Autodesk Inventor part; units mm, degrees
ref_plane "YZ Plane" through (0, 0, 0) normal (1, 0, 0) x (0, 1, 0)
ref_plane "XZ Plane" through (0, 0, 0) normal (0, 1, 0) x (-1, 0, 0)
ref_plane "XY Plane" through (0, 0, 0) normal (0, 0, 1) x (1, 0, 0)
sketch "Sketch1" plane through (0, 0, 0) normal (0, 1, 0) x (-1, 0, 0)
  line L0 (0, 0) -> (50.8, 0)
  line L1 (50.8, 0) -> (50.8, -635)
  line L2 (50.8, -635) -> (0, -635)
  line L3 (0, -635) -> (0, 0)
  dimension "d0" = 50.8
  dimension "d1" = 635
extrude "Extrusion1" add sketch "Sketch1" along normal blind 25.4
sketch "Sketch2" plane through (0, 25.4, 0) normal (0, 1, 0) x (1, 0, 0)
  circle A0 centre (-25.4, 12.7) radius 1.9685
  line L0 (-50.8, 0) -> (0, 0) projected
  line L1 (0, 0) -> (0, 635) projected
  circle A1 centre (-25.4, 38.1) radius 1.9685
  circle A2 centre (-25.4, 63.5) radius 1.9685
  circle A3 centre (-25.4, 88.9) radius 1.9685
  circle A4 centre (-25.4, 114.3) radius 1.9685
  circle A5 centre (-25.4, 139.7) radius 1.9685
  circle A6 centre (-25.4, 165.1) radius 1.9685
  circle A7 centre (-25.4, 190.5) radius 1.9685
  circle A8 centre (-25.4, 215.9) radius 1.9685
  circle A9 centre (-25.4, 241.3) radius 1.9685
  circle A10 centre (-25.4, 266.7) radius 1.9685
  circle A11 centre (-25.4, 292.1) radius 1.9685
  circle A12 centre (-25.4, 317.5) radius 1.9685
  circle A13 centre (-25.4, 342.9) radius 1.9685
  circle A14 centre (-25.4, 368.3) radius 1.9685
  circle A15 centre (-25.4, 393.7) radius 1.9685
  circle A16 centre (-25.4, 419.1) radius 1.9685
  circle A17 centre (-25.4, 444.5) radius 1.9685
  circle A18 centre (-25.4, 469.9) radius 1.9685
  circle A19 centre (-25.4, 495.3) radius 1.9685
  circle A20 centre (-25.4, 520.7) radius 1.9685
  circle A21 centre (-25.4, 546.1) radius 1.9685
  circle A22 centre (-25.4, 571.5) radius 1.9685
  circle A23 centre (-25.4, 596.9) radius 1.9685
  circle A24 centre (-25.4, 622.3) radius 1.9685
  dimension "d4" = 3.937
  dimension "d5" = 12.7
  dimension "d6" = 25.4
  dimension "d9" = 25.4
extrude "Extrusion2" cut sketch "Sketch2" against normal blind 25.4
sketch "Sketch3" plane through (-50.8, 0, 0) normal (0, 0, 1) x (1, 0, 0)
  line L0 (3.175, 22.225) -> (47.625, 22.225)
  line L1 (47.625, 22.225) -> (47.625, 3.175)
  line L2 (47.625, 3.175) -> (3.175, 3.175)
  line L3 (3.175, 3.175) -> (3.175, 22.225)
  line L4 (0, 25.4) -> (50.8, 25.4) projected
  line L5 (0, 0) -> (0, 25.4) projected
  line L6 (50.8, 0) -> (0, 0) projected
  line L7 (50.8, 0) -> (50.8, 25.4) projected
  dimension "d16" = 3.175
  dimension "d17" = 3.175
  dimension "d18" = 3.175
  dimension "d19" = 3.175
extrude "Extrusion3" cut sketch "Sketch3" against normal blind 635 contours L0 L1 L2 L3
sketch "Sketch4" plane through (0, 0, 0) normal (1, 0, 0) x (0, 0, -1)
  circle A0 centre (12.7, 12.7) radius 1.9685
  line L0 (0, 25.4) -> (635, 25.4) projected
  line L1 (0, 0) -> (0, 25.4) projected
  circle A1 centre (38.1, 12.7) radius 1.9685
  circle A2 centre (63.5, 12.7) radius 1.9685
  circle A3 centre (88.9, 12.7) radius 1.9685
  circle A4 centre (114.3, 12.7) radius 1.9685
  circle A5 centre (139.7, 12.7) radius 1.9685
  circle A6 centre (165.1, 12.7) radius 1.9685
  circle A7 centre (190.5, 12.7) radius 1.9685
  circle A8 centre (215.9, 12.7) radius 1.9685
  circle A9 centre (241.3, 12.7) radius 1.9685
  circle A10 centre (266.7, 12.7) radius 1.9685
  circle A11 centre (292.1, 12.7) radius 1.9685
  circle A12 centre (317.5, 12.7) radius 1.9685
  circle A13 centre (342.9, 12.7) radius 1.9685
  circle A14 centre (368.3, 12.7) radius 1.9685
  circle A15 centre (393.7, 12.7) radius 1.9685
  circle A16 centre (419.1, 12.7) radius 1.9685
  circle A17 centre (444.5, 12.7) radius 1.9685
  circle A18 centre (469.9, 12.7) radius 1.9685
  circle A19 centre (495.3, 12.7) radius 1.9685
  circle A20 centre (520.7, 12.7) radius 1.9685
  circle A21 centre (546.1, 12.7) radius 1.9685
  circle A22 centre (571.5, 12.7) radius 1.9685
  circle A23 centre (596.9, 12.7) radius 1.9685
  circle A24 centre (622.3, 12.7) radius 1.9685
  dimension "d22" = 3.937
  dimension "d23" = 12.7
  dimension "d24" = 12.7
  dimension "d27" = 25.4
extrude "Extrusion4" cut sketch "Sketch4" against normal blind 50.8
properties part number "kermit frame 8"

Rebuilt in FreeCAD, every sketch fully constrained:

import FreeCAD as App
import Part
import Sketcher
from FreeCAD import Vector
Q = App.Units.Quantity

doc = App.newDocument("Part")
params = doc.addObject("Spreadsheet::Sheet", "Params")
for row, (alias, value) in enumerate([
    ("sketch1_width", "2 in"),
    ("sketch1_height", "25 in"),
    ("pad1_length", "1 in"),
    ("sketch2_diameter", "0.155 in"),
    ("pocket1_length", "1 in"),
    ("sketch3_width", "1.75 in"),
    ("sketch3_height", "0.75 in"),
    ("pocket2_length", "25 in"),
    ("sketch4_diameter", "0.155 in"),
    ("pocket3_length", "2 in"),
], start=1):
    params.set(f"A{row}", alias)
    params.set(f"B{row}", "=" + value)
    params.setAlias(f"B{row}", alias)

body = doc.addObject("PartDesign::Body", "Body")

sketch1 = body.newObject("Sketcher::SketchObject", "Sketch")
sketch1.AttachmentSupport = (doc.getObject("XZ_Plane"), [""])
sketch1.MapMode = "FlatFace"
sketch1.addGeometry(Part.LineSegment(Vector(-51, 0, 0), Vector(0, 0, 0)), False)
sketch1.addGeometry(Part.LineSegment(Vector(0, 0, 0), Vector(0, -635, 0)), False)
sketch1.addGeometry(Part.LineSegment(Vector(0, -635, 0), Vector(-51, -635, 0)), False)
sketch1.addGeometry(Part.LineSegment(Vector(-51, -635, 0), Vector(-51, 0, 0)), False)
sketch1.addConstraint(Sketcher.Constraint("Coincident", 0, 2, 1, 1))
sketch1.addConstraint(Sketcher.Constraint("Coincident", 1, 2, 2, 1))
sketch1.addConstraint(Sketcher.Constraint("Coincident", 2, 2, 3, 1))
sketch1.addConstraint(Sketcher.Constraint("Coincident", 3, 2, 0, 1))
sketch1.addConstraint(Sketcher.Constraint("Horizontal", 0))
sketch1.addConstraint(Sketcher.Constraint("Vertical", 1))
sketch1.addConstraint(Sketcher.Constraint("Horizontal", 2))
sketch1.addConstraint(Sketcher.Constraint("Vertical", 3))
sketch1.addConstraint(Sketcher.Constraint("Coincident", 0, 2, -1, 1))
sketch1.addConstraint(Sketcher.Constraint("DistanceX", 0, 1, 0, 2, Q("2 in")))
sketch1.addConstraint(Sketcher.Constraint("DistanceY", 1, 2, 1, 1, Q("25 in")))
sketch1.setExpression("Constraints[9]", "Params.sketch1_width")
sketch1.setExpression("Constraints[10]", "Params.sketch1_height")
pad1 = body.newObject("PartDesign::Pad", "Pad")
pad1.Profile = sketch1
pad1.setExpression("Length", "Params.pad1_length")
pad1.Reversed = True

sketch2 = body.newObject("Sketcher::SketchObject", "Sketch001")
sketch2.AttachmentSupport = (doc.getObject("XZ_Plane"), [""])
sketch2.MapMode = "FlatFace"
sketch2.AttachmentOffset = App.Placement(Vector(0, 0, -1 * 25.4), App.Rotation())
sketch2.addGeometry(Part.Circle(Vector(-25.4, -12.7, 0), Vector(0, 0, 1), 2), False)
sketch2.addGeometry(Part.Circle(Vector(-25.4, -38.1, 0), Vector(0, 0, 1), 2), False)
sketch2.addGeometry(Part.Circle(Vector(-25.4, -63.5, 0), Vector(0, 0, 1), 2), False)
sketch2.addGeometry(Part.Circle(Vector(-25.4, -88.9, 0), Vector(0, 0, 1), 2), False)
sketch2.addGeometry(Part.Circle(Vector(-25.4, -114.3, 0), Vector(0, 0, 1), 2), False)
sketch2.addGeometry(Part.Circle(Vector(-25.4, -139.7, 0), Vector(0, 0, 1), 2), False)
sketch2.addGeometry(Part.Circle(Vector(-25.4, -165.1, 0), Vector(0, 0, 1), 2), False)
sketch2.addGeometry(Part.Circle(Vector(-25.4, -190.5, 0), Vector(0, 0, 1), 2), False)
sketch2.addGeometry(Part.Circle(Vector(-25.4, -215.9, 0), Vector(0, 0, 1), 2), False)
sketch2.addGeometry(Part.Circle(Vector(-25.4, -241.3, 0), Vector(0, 0, 1), 2), False)
sketch2.addGeometry(Part.Circle(Vector(-25.4, -266.7, 0), Vector(0, 0, 1), 2), False)
sketch2.addGeometry(Part.Circle(Vector(-25.4, -292.1, 0), Vector(0, 0, 1), 2), False)
sketch2.addGeometry(Part.Circle(Vector(-25.4, -317.5, 0), Vector(0, 0, 1), 2), False)
sketch2.addGeometry(Part.Circle(Vector(-25.4, -342.9, 0), Vector(0, 0, 1), 2), False)
sketch2.addGeometry(Part.Circle(Vector(-25.4, -368.3, 0), Vector(0, 0, 1), 2), False)
sketch2.addGeometry(Part.Circle(Vector(-25.4, -393.7, 0), Vector(0, 0, 1), 2), False)
sketch2.addGeometry(Part.Circle(Vector(-25.4, -419.1, 0), Vector(0, 0, 1), 2), False)
sketch2.addGeometry(Part.Circle(Vector(-25.4, -444.5, 0), Vector(0, 0, 1), 2), False)
sketch2.addGeometry(Part.Circle(Vector(-25.4, -469.9, 0), Vector(0, 0, 1), 2), False)
sketch2.addGeometry(Part.Circle(Vector(-25.4, -495.3, 0), Vector(0, 0, 1), 2), False)
sketch2.addGeometry(Part.Circle(Vector(-25.4, -520.7, 0), Vector(0, 0, 1), 2), False)
sketch2.addGeometry(Part.Circle(Vector(-25.4, -546.1, 0), Vector(0, 0, 1), 2), False)
sketch2.addGeometry(Part.Circle(Vector(-25.4, -571.5, 0), Vector(0, 0, 1), 2), False)
sketch2.addGeometry(Part.Circle(Vector(-25.4, -596.9, 0), Vector(0, 0, 1), 2), False)
sketch2.addGeometry(Part.Circle(Vector(-25.4, -622.3, 0), Vector(0, 0, 1), 2), False)
sketch2.addConstraint(Sketcher.Constraint("Equal", 0, 1))
sketch2.addConstraint(Sketcher.Constraint("Equal", 1, 2))
sketch2.addConstraint(Sketcher.Constraint("Equal", 2, 3))
sketch2.addConstraint(Sketcher.Constraint("Equal", 3, 4))
sketch2.addConstraint(Sketcher.Constraint("Equal", 4, 5))
sketch2.addConstraint(Sketcher.Constraint("Equal", 5, 6))
sketch2.addConstraint(Sketcher.Constraint("Equal", 6, 7))
sketch2.addConstraint(Sketcher.Constraint("Equal", 7, 8))
sketch2.addConstraint(Sketcher.Constraint("Equal", 8, 9))
sketch2.addConstraint(Sketcher.Constraint("Equal", 9, 10))
sketch2.addConstraint(Sketcher.Constraint("Equal", 10, 11))
sketch2.addConstraint(Sketcher.Constraint("Equal", 11, 12))
sketch2.addConstraint(Sketcher.Constraint("Equal", 12, 13))
sketch2.addConstraint(Sketcher.Constraint("Equal", 13, 14))
sketch2.addConstraint(Sketcher.Constraint("Equal", 14, 15))
sketch2.addConstraint(Sketcher.Constraint("Equal", 15, 16))
sketch2.addConstraint(Sketcher.Constraint("Equal", 16, 17))
sketch2.addConstraint(Sketcher.Constraint("Equal", 17, 18))
sketch2.addConstraint(Sketcher.Constraint("Equal", 18, 19))
sketch2.addConstraint(Sketcher.Constraint("Equal", 19, 20))
sketch2.addConstraint(Sketcher.Constraint("Equal", 20, 21))
sketch2.addConstraint(Sketcher.Constraint("Equal", 21, 22))
sketch2.addConstraint(Sketcher.Constraint("Equal", 22, 23))
sketch2.addConstraint(Sketcher.Constraint("Equal", 23, 24))
sketch2.addConstraint(Sketcher.Constraint("Vertical", 0, 3, 1, 3))
sketch2.addConstraint(Sketcher.Constraint("Vertical", 1, 3, 2, 3))
sketch2.addConstraint(Sketcher.Constraint("Vertical", 2, 3, 3, 3))
sketch2.addConstraint(Sketcher.Constraint("Vertical", 3, 3, 4, 3))
sketch2.addConstraint(Sketcher.Constraint("Vertical", 4, 3, 5, 3))
sketch2.addConstraint(Sketcher.Constraint("Vertical", 5, 3, 6, 3))
sketch2.addConstraint(Sketcher.Constraint("Vertical", 6, 3, 7, 3))
sketch2.addConstraint(Sketcher.Constraint("Vertical", 7, 3, 8, 3))
sketch2.addConstraint(Sketcher.Constraint("Vertical", 8, 3, 9, 3))
sketch2.addConstraint(Sketcher.Constraint("Vertical", 9, 3, 10, 3))
sketch2.addConstraint(Sketcher.Constraint("Vertical", 10, 3, 11, 3))
sketch2.addConstraint(Sketcher.Constraint("Vertical", 11, 3, 12, 3))
sketch2.addConstraint(Sketcher.Constraint("Vertical", 12, 3, 13, 3))
sketch2.addConstraint(Sketcher.Constraint("Vertical", 13, 3, 14, 3))
sketch2.addConstraint(Sketcher.Constraint("Vertical", 14, 3, 15, 3))
sketch2.addConstraint(Sketcher.Constraint("Vertical", 15, 3, 16, 3))
sketch2.addConstraint(Sketcher.Constraint("Vertical", 16, 3, 17, 3))
sketch2.addConstraint(Sketcher.Constraint("Vertical", 17, 3, 18, 3))
sketch2.addConstraint(Sketcher.Constraint("Vertical", 18, 3, 19, 3))
sketch2.addConstraint(Sketcher.Constraint("Vertical", 19, 3, 20, 3))
sketch2.addConstraint(Sketcher.Constraint("Vertical", 20, 3, 21, 3))
sketch2.addConstraint(Sketcher.Constraint("Vertical", 21, 3, 22, 3))
sketch2.addConstraint(Sketcher.Constraint("Vertical", 22, 3, 23, 3))
sketch2.addConstraint(Sketcher.Constraint("Vertical", 23, 3, 24, 3))
sketch2.addConstraint(Sketcher.Constraint("Diameter", 0, Q("0.155 in")))
sketch2.addConstraint(Sketcher.Constraint("DistanceX", 0, 3, -1, 1, Q("1 in")))
sketch2.addConstraint(Sketcher.Constraint("DistanceY", 1, 3, 0, 3, Q("1 in")))
sketch2.addConstraint(Sketcher.Constraint("DistanceY", 2, 3, 1, 3, Q("1 in")))
sketch2.addConstraint(Sketcher.Constraint("DistanceY", 3, 3, 2, 3, Q("1 in")))
sketch2.addConstraint(Sketcher.Constraint("DistanceY", 4, 3, 3, 3, Q("1 in")))
sketch2.addConstraint(Sketcher.Constraint("DistanceY", 5, 3, 4, 3, Q("1 in")))
sketch2.addConstraint(Sketcher.Constraint("DistanceY", 6, 3, 5, 3, Q("1 in")))
sketch2.addConstraint(Sketcher.Constraint("DistanceY", 7, 3, 6, 3, Q("1 in")))
sketch2.addConstraint(Sketcher.Constraint("DistanceY", 8, 3, 7, 3, Q("1 in")))
sketch2.addConstraint(Sketcher.Constraint("DistanceY", 9, 3, 8, 3, Q("1 in")))
sketch2.addConstraint(Sketcher.Constraint("DistanceY", 10, 3, 9, 3, Q("1 in")))
sketch2.addConstraint(Sketcher.Constraint("DistanceY", 11, 3, 10, 3, Q("1 in")))
sketch2.addConstraint(Sketcher.Constraint("DistanceY", 12, 3, 11, 3, Q("1 in")))
sketch2.addConstraint(Sketcher.Constraint("DistanceY", 13, 3, 12, 3, Q("1 in")))
sketch2.addConstraint(Sketcher.Constraint("DistanceY", 14, 3, 13, 3, Q("1 in")))
sketch2.addConstraint(Sketcher.Constraint("DistanceY", 15, 3, 14, 3, Q("1 in")))
sketch2.addConstraint(Sketcher.Constraint("DistanceY", 16, 3, 15, 3, Q("1 in")))
sketch2.addConstraint(Sketcher.Constraint("DistanceY", 17, 3, 16, 3, Q("1 in")))
sketch2.addConstraint(Sketcher.Constraint("DistanceY", 18, 3, 17, 3, Q("1 in")))
sketch2.addConstraint(Sketcher.Constraint("DistanceY", 19, 3, 18, 3, Q("1 in")))
sketch2.addConstraint(Sketcher.Constraint("DistanceY", 20, 3, 19, 3, Q("1 in")))
sketch2.addConstraint(Sketcher.Constraint("DistanceY", 21, 3, 20, 3, Q("1 in")))
sketch2.addConstraint(Sketcher.Constraint("DistanceY", 22, 3, 21, 3, Q("1 in")))
sketch2.addConstraint(Sketcher.Constraint("DistanceY", 23, 3, 22, 3, Q("1 in")))
sketch2.addConstraint(Sketcher.Constraint("DistanceY", 24, 3, 23, 3, Q("1 in")))
sketch2.addConstraint(Sketcher.Constraint("DistanceY", 0, 3, -1, 1, Q("0.5 in")))
sketch2.setExpression("Constraints[48]", "Params.sketch2_diameter")
pocket1 = body.newObject("PartDesign::Pocket", "Pocket")
pocket1.Profile = sketch2
pocket1.setExpression("Length", "Params.pocket1_length")
pocket1.Reversed = True

sketch3 = body.newObject("Sketcher::SketchObject", "Sketch002")
sketch3.AttachmentSupport = (doc.getObject("XY_Plane"), [""])
sketch3.MapMode = "FlatFace"
sketch3.addGeometry(Part.LineSegment(Vector(-3, 22, 0), Vector(-48, 22, 0)), False)
sketch3.addGeometry(Part.LineSegment(Vector(-48, 22, 0), Vector(-48, 3, 0)), False)
sketch3.addGeometry(Part.LineSegment(Vector(-48, 3, 0), Vector(-3, 3, 0)), False)
sketch3.addGeometry(Part.LineSegment(Vector(-3, 3, 0), Vector(-3, 22, 0)), False)
sketch3.addConstraint(Sketcher.Constraint("Coincident", 0, 2, 1, 1))
sketch3.addConstraint(Sketcher.Constraint("Coincident", 1, 2, 2, 1))
sketch3.addConstraint(Sketcher.Constraint("Coincident", 2, 2, 3, 1))
sketch3.addConstraint(Sketcher.Constraint("Coincident", 3, 2, 0, 1))
sketch3.addConstraint(Sketcher.Constraint("Horizontal", 0))
sketch3.addConstraint(Sketcher.Constraint("Vertical", 1))
sketch3.addConstraint(Sketcher.Constraint("Horizontal", 2))
sketch3.addConstraint(Sketcher.Constraint("Vertical", 3))
sketch3.addConstraint(Sketcher.Constraint("DistanceY", -1, 1, 1, 2, Q("0.125 in")))
sketch3.addConstraint(Sketcher.Constraint("DistanceX", 2, 2, -1, 1, Q("0.125 in")))
sketch3.addConstraint(Sketcher.Constraint("DistanceX", 0, 2, 0, 1, Q("1.75 in")))
sketch3.addConstraint(Sketcher.Constraint("DistanceY", 1, 2, 1, 1, Q("0.75 in")))
sketch3.setExpression("Constraints[10]", "Params.sketch3_width")
sketch3.setExpression("Constraints[11]", "Params.sketch3_height")
pocket2 = body.newObject("PartDesign::Pocket", "Pocket001")
pocket2.Profile = sketch3
pocket2.setExpression("Length", "Params.pocket2_length")

sketch4 = body.newObject("Sketcher::SketchObject", "Sketch003")
sketch4.AttachmentSupport = (doc.getObject("YZ_Plane"), [""])
sketch4.MapMode = "FlatFace"
sketch4.addGeometry(Part.Circle(Vector(12.7, -12.7, 0), Vector(0, 0, 1), 2), False)
sketch4.addGeometry(Part.Circle(Vector(12.7, -38.1, 0), Vector(0, 0, 1), 2), False)
sketch4.addGeometry(Part.Circle(Vector(12.7, -63.5, 0), Vector(0, 0, 1), 2), False)
sketch4.addGeometry(Part.Circle(Vector(12.7, -88.9, 0), Vector(0, 0, 1), 2), False)
sketch4.addGeometry(Part.Circle(Vector(12.7, -114.3, 0), Vector(0, 0, 1), 2), False)
sketch4.addGeometry(Part.Circle(Vector(12.7, -139.7, 0), Vector(0, 0, 1), 2), False)
sketch4.addGeometry(Part.Circle(Vector(12.7, -165.1, 0), Vector(0, 0, 1), 2), False)
sketch4.addGeometry(Part.Circle(Vector(12.7, -190.5, 0), Vector(0, 0, 1), 2), False)
sketch4.addGeometry(Part.Circle(Vector(12.7, -215.9, 0), Vector(0, 0, 1), 2), False)
sketch4.addGeometry(Part.Circle(Vector(12.7, -241.3, 0), Vector(0, 0, 1), 2), False)
sketch4.addGeometry(Part.Circle(Vector(12.7, -266.7, 0), Vector(0, 0, 1), 2), False)
sketch4.addGeometry(Part.Circle(Vector(12.7, -292.1, 0), Vector(0, 0, 1), 2), False)
sketch4.addGeometry(Part.Circle(Vector(12.7, -317.5, 0), Vector(0, 0, 1), 2), False)
sketch4.addGeometry(Part.Circle(Vector(12.7, -342.9, 0), Vector(0, 0, 1), 2), False)
sketch4.addGeometry(Part.Circle(Vector(12.7, -368.3, 0), Vector(0, 0, 1), 2), False)
sketch4.addGeometry(Part.Circle(Vector(12.7, -393.7, 0), Vector(0, 0, 1), 2), False)
sketch4.addGeometry(Part.Circle(Vector(12.7, -419.1, 0), Vector(0, 0, 1), 2), False)
sketch4.addGeometry(Part.Circle(Vector(12.7, -444.5, 0), Vector(0, 0, 1), 2), False)
sketch4.addGeometry(Part.Circle(Vector(12.7, -469.9, 0), Vector(0, 0, 1), 2), False)
sketch4.addGeometry(Part.Circle(Vector(12.7, -495.3, 0), Vector(0, 0, 1), 2), False)
sketch4.addGeometry(Part.Circle(Vector(12.7, -520.7, 0), Vector(0, 0, 1), 2), False)
sketch4.addGeometry(Part.Circle(Vector(12.7, -546.1, 0), Vector(0, 0, 1), 2), False)
sketch4.addGeometry(Part.Circle(Vector(12.7, -571.5, 0), Vector(0, 0, 1), 2), False)
sketch4.addGeometry(Part.Circle(Vector(12.7, -596.9, 0), Vector(0, 0, 1), 2), False)
sketch4.addGeometry(Part.Circle(Vector(12.7, -622.3, 0), Vector(0, 0, 1), 2), False)
sketch4.addConstraint(Sketcher.Constraint("Equal", 0, 1))
sketch4.addConstraint(Sketcher.Constraint("Equal", 1, 2))
sketch4.addConstraint(Sketcher.Constraint("Equal", 2, 3))
sketch4.addConstraint(Sketcher.Constraint("Equal", 3, 4))
sketch4.addConstraint(Sketcher.Constraint("Equal", 4, 5))
sketch4.addConstraint(Sketcher.Constraint("Equal", 5, 6))
sketch4.addConstraint(Sketcher.Constraint("Equal", 6, 7))
sketch4.addConstraint(Sketcher.Constraint("Equal", 7, 8))
sketch4.addConstraint(Sketcher.Constraint("Equal", 8, 9))
sketch4.addConstraint(Sketcher.Constraint("Equal", 9, 10))
sketch4.addConstraint(Sketcher.Constraint("Equal", 10, 11))
sketch4.addConstraint(Sketcher.Constraint("Equal", 11, 12))
sketch4.addConstraint(Sketcher.Constraint("Equal", 12, 13))
sketch4.addConstraint(Sketcher.Constraint("Equal", 13, 14))
sketch4.addConstraint(Sketcher.Constraint("Equal", 14, 15))
sketch4.addConstraint(Sketcher.Constraint("Equal", 15, 16))
sketch4.addConstraint(Sketcher.Constraint("Equal", 16, 17))
sketch4.addConstraint(Sketcher.Constraint("Equal", 17, 18))
sketch4.addConstraint(Sketcher.Constraint("Equal", 18, 19))
sketch4.addConstraint(Sketcher.Constraint("Equal", 19, 20))
sketch4.addConstraint(Sketcher.Constraint("Equal", 20, 21))
sketch4.addConstraint(Sketcher.Constraint("Equal", 21, 22))
sketch4.addConstraint(Sketcher.Constraint("Equal", 22, 23))
sketch4.addConstraint(Sketcher.Constraint("Equal", 23, 24))
sketch4.addConstraint(Sketcher.Constraint("Vertical", 0, 3, 1, 3))
sketch4.addConstraint(Sketcher.Constraint("Vertical", 1, 3, 2, 3))
sketch4.addConstraint(Sketcher.Constraint("Vertical", 2, 3, 3, 3))
sketch4.addConstraint(Sketcher.Constraint("Vertical", 3, 3, 4, 3))
sketch4.addConstraint(Sketcher.Constraint("Vertical", 4, 3, 5, 3))
sketch4.addConstraint(Sketcher.Constraint("Vertical", 5, 3, 6, 3))
sketch4.addConstraint(Sketcher.Constraint("Vertical", 6, 3, 7, 3))
sketch4.addConstraint(Sketcher.Constraint("Vertical", 7, 3, 8, 3))
sketch4.addConstraint(Sketcher.Constraint("Vertical", 8, 3, 9, 3))
sketch4.addConstraint(Sketcher.Constraint("Vertical", 9, 3, 10, 3))
sketch4.addConstraint(Sketcher.Constraint("Vertical", 10, 3, 11, 3))
sketch4.addConstraint(Sketcher.Constraint("Vertical", 11, 3, 12, 3))
sketch4.addConstraint(Sketcher.Constraint("Vertical", 12, 3, 13, 3))
sketch4.addConstraint(Sketcher.Constraint("Vertical", 13, 3, 14, 3))
sketch4.addConstraint(Sketcher.Constraint("Vertical", 14, 3, 15, 3))
sketch4.addConstraint(Sketcher.Constraint("Vertical", 15, 3, 16, 3))
sketch4.addConstraint(Sketcher.Constraint("Vertical", 16, 3, 17, 3))
sketch4.addConstraint(Sketcher.Constraint("Vertical", 17, 3, 18, 3))
sketch4.addConstraint(Sketcher.Constraint("Vertical", 18, 3, 19, 3))
sketch4.addConstraint(Sketcher.Constraint("Vertical", 19, 3, 20, 3))
sketch4.addConstraint(Sketcher.Constraint("Vertical", 20, 3, 21, 3))
sketch4.addConstraint(Sketcher.Constraint("Vertical", 21, 3, 22, 3))
sketch4.addConstraint(Sketcher.Constraint("Vertical", 22, 3, 23, 3))
sketch4.addConstraint(Sketcher.Constraint("Vertical", 23, 3, 24, 3))
sketch4.addConstraint(Sketcher.Constraint("Diameter", 0, Q("0.155 in")))
sketch4.addConstraint(Sketcher.Constraint("DistanceY", 1, 3, 0, 3, Q("1 in")))
sketch4.addConstraint(Sketcher.Constraint("DistanceY", 2, 3, 1, 3, Q("1 in")))
sketch4.addConstraint(Sketcher.Constraint("DistanceY", 3, 3, 2, 3, Q("1 in")))
sketch4.addConstraint(Sketcher.Constraint("DistanceY", 4, 3, 3, 3, Q("1 in")))
sketch4.addConstraint(Sketcher.Constraint("DistanceY", 5, 3, 4, 3, Q("1 in")))
sketch4.addConstraint(Sketcher.Constraint("DistanceY", 6, 3, 5, 3, Q("1 in")))
sketch4.addConstraint(Sketcher.Constraint("DistanceY", 7, 3, 6, 3, Q("1 in")))
sketch4.addConstraint(Sketcher.Constraint("DistanceY", 8, 3, 7, 3, Q("1 in")))
sketch4.addConstraint(Sketcher.Constraint("DistanceY", 9, 3, 8, 3, Q("1 in")))
sketch4.addConstraint(Sketcher.Constraint("DistanceY", 10, 3, 9, 3, Q("1 in")))
sketch4.addConstraint(Sketcher.Constraint("DistanceY", 11, 3, 10, 3, Q("1 in")))
sketch4.addConstraint(Sketcher.Constraint("DistanceY", 12, 3, 11, 3, Q("1 in")))
sketch4.addConstraint(Sketcher.Constraint("DistanceY", 13, 3, 12, 3, Q("1 in")))
sketch4.addConstraint(Sketcher.Constraint("DistanceY", 14, 3, 13, 3, Q("1 in")))
sketch4.addConstraint(Sketcher.Constraint("DistanceY", 15, 3, 14, 3, Q("1 in")))
sketch4.addConstraint(Sketcher.Constraint("DistanceY", 16, 3, 15, 3, Q("1 in")))
sketch4.addConstraint(Sketcher.Constraint("DistanceY", 17, 3, 16, 3, Q("1 in")))
sketch4.addConstraint(Sketcher.Constraint("DistanceY", 18, 3, 17, 3, Q("1 in")))
sketch4.addConstraint(Sketcher.Constraint("DistanceY", 19, 3, 18, 3, Q("1 in")))
sketch4.addConstraint(Sketcher.Constraint("DistanceY", 20, 3, 19, 3, Q("1 in")))
sketch4.addConstraint(Sketcher.Constraint("DistanceY", 21, 3, 20, 3, Q("1 in")))
sketch4.addConstraint(Sketcher.Constraint("DistanceY", 22, 3, 21, 3, Q("1 in")))
sketch4.addConstraint(Sketcher.Constraint("DistanceY", 23, 3, 22, 3, Q("1 in")))
sketch4.addConstraint(Sketcher.Constraint("DistanceY", 24, 3, 23, 3, Q("1 in")))
sketch4.addConstraint(Sketcher.Constraint("DistanceX", -1, 1, 0, 3, Q("0.5 in")))
sketch4.addConstraint(Sketcher.Constraint("DistanceY", 0, 3, -1, 1, Q("0.5 in")))
sketch4.setExpression("Constraints[48]", "Params.sketch4_diameter")
pocket3 = body.newObject("PartDesign::Pocket", "Pocket002")
pocket3.Profile = sketch4
pocket3.setExpression("Length", "Params.pocket3_length")

doc.recompute()
